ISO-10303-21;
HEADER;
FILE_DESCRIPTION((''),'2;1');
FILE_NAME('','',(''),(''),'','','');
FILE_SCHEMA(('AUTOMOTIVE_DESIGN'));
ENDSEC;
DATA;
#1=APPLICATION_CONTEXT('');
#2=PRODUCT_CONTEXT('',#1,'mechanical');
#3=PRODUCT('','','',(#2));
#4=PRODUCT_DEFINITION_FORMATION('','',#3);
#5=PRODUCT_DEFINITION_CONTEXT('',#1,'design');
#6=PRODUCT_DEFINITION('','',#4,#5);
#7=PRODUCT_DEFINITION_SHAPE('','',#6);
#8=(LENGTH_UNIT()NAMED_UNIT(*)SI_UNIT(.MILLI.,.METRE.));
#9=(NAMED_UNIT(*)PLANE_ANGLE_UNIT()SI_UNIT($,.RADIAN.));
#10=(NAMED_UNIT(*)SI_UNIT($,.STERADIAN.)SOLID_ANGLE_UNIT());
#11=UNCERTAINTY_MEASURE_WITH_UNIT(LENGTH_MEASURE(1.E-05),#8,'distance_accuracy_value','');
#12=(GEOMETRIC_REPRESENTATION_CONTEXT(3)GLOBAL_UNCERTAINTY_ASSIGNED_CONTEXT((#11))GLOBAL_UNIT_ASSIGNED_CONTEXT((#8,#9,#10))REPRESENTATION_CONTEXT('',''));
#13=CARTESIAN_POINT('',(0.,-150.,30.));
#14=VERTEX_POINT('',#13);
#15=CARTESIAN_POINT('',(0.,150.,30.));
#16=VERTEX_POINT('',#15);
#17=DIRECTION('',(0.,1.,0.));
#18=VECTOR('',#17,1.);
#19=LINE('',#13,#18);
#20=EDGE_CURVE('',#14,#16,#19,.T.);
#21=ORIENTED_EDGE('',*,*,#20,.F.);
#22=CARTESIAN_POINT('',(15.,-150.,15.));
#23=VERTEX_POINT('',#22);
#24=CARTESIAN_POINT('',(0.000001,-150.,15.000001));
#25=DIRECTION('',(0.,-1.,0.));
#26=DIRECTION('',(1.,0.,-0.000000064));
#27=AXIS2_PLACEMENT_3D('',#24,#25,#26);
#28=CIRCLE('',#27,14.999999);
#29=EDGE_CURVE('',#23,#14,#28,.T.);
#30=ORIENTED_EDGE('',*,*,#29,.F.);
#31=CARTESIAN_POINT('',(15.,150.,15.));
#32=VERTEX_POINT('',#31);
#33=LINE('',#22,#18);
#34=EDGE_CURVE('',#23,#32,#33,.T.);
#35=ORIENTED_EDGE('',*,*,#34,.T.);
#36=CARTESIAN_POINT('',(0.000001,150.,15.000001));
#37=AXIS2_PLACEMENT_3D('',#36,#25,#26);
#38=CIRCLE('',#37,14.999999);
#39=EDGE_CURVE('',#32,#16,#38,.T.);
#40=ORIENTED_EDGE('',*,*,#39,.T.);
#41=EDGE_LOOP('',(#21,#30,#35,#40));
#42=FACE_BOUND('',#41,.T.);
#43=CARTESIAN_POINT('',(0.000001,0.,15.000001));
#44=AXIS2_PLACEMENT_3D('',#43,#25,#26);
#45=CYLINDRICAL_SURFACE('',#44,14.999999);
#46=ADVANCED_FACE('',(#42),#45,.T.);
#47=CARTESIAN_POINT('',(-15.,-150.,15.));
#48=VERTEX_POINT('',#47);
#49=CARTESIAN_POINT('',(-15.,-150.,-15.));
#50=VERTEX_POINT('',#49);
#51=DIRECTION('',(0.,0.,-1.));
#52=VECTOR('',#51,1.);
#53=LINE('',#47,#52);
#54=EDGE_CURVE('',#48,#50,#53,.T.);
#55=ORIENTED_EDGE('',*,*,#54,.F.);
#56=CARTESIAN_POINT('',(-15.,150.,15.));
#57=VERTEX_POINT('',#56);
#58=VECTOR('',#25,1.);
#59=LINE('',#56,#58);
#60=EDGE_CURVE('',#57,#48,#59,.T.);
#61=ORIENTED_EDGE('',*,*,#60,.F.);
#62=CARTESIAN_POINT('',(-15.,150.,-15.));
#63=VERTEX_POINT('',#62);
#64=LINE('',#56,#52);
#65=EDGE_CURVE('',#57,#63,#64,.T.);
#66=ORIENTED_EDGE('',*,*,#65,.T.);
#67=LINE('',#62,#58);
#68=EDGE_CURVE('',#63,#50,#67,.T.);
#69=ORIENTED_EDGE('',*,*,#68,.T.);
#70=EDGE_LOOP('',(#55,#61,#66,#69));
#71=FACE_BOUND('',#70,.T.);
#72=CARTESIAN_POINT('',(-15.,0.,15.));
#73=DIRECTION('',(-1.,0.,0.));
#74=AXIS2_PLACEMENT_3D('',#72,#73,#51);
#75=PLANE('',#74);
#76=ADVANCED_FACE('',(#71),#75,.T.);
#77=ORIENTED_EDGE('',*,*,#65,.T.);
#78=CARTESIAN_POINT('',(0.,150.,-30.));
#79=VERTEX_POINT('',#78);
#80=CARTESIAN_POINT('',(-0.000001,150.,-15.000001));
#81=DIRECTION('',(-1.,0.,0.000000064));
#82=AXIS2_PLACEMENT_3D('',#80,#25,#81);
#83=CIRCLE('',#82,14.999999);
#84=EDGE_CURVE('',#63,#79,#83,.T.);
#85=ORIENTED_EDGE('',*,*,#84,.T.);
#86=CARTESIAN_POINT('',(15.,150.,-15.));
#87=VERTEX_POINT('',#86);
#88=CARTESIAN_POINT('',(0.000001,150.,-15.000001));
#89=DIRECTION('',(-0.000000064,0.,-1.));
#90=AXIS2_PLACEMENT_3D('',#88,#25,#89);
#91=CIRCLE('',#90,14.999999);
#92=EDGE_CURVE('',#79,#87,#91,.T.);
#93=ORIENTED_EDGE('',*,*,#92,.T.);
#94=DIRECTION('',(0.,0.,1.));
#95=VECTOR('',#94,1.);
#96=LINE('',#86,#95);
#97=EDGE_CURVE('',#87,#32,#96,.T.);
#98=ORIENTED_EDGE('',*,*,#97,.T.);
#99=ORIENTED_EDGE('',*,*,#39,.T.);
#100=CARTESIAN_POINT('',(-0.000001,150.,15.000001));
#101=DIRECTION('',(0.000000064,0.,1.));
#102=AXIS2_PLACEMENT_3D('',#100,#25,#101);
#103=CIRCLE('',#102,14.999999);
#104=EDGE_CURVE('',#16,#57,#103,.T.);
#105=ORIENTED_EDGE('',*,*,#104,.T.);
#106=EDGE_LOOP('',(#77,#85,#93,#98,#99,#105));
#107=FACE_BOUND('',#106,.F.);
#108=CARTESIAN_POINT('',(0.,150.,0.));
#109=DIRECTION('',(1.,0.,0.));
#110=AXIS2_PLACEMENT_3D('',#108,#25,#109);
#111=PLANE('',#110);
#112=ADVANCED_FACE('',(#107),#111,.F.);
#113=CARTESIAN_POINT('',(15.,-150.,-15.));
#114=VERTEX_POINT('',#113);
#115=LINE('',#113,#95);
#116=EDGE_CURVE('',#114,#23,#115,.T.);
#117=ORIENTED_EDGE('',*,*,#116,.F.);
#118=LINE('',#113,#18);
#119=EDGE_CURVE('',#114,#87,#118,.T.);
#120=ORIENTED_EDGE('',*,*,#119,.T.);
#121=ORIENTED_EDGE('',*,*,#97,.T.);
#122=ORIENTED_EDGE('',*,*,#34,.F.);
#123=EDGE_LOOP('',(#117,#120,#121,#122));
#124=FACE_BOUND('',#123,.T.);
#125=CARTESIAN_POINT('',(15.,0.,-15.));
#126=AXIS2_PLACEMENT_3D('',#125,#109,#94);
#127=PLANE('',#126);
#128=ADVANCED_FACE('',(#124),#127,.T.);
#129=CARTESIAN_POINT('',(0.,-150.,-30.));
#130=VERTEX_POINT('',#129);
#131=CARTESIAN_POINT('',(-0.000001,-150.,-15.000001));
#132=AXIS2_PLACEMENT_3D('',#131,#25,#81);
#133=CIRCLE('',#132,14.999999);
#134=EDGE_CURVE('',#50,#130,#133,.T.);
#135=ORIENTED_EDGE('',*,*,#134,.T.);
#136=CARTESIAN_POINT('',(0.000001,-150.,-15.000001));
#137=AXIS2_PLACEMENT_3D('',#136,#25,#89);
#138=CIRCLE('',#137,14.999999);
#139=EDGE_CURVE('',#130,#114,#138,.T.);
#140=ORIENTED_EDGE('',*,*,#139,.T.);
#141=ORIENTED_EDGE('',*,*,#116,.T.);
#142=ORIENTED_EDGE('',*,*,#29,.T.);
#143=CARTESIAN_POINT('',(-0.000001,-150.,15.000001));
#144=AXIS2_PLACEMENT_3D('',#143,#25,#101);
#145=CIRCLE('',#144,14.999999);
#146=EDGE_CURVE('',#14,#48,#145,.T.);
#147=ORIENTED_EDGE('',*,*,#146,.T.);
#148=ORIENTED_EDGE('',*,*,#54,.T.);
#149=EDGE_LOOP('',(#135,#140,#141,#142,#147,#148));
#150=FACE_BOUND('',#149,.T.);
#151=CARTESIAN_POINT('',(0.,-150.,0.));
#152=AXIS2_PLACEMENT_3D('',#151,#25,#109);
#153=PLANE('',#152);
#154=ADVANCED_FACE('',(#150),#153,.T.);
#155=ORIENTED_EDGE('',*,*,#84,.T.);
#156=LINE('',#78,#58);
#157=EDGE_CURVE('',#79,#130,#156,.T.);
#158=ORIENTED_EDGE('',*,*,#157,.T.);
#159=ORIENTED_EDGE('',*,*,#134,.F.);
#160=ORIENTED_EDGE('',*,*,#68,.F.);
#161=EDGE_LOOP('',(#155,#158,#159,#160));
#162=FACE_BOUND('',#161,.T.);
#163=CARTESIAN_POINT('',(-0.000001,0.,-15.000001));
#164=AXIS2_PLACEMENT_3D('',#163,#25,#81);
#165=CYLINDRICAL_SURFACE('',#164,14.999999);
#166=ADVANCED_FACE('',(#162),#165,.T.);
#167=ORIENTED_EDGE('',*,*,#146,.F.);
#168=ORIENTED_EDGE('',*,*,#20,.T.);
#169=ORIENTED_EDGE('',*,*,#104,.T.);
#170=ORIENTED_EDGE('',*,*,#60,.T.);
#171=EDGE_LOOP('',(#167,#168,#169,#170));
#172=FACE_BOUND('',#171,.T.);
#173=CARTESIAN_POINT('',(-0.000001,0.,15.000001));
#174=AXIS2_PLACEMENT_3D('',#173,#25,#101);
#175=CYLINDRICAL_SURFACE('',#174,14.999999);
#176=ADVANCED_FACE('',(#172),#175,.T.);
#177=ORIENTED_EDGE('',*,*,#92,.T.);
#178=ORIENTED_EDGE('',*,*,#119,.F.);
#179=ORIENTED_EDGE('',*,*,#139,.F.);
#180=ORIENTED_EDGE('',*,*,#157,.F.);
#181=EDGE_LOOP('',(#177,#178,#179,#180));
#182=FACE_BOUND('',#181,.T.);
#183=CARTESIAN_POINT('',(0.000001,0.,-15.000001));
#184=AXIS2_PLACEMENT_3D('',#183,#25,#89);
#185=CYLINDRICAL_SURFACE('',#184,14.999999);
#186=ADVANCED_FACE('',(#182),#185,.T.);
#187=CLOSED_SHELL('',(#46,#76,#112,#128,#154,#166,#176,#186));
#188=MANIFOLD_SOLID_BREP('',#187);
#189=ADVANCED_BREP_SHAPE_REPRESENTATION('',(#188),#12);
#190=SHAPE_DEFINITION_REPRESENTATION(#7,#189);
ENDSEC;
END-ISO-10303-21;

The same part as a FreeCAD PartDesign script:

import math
import FreeCAD as App
import Part
import Sketcher
from FreeCAD import Vector
Q = App.Units.Quantity

doc = App.newDocument("Part")
body = doc.addObject("PartDesign::Body", "Body")

sketch1 = body.newObject("Sketcher::SketchObject", "Sketch")
sketch1.AttachmentSupport = (doc.getObject("XZ_Plane"), [""])
sketch1.MapMode = "FlatFace"
sketch1.addGeometry([
    Part.ArcOfCircle(Part.Circle(Vector(-0.000001, 15.000001, 0), Vector(0, 0, 1), 14.999999), math.radians(89.999996), math.radians(180.000004)),
    Part.LineSegment(Vector(-15, 15, 0), Vector(-15, -15, 0)),
    Part.ArcOfCircle(Part.Circle(Vector(-0.000001, -15.000001, 0), Vector(0, 0, 1), 14.999999), math.radians(179.999996), math.radians(270.000004)),
    Part.ArcOfCircle(Part.Circle(Vector(0.000001, -15.000001, 0), Vector(0, 0, 1), 14.999999), math.radians(-90.000004), math.radians(0.000004)),
    Part.LineSegment(Vector(15, -15, 0), Vector(15, 15, 0)),
    Part.ArcOfCircle(Part.Circle(Vector(0.000001, 15.000001, 0), Vector(0, 0, 1), 14.999999), math.radians(-0.000004), math.radians(90.000004)),
], False)
sketch1.addConstraint([
    Sketcher.Constraint("Tangent", 0, 2, 1, 1),
    Sketcher.Constraint("Tangent", 1, 2, 2, 1),
    Sketcher.Constraint("Tangent", 2, 2, 3, 1),
    Sketcher.Constraint("Tangent", 3, 2, 4, 1),
    Sketcher.Constraint("Tangent", 4, 2, 5, 1),
    Sketcher.Constraint("Tangent", 5, 2, 0, 1),
    Sketcher.Constraint("Vertical", 1),
    Sketcher.Constraint("Vertical", 4),
    Sketcher.Constraint("Equal", 0, 2),
    Sketcher.Constraint("Equal", 2, 3),
    Sketcher.Constraint("Symmetric", 0, 3, 2, 3, -1, 1),
    Sketcher.Constraint("PointOnObject", 2, 2, -2),
    Sketcher.Constraint("PointOnObject", 5, 2, -2),
    Sketcher.Constraint("Radius", 0, Q("14.999999 mm")),
    Sketcher.Constraint("DistanceY", 1, 2, 1, 1, Q("30 mm")),
])
pad1 = body.newObject("PartDesign::Pad", "Pad")
pad1.Profile = sketch1
pad1.Length = 300
pad1.Midplane = True

doc.recompute()
